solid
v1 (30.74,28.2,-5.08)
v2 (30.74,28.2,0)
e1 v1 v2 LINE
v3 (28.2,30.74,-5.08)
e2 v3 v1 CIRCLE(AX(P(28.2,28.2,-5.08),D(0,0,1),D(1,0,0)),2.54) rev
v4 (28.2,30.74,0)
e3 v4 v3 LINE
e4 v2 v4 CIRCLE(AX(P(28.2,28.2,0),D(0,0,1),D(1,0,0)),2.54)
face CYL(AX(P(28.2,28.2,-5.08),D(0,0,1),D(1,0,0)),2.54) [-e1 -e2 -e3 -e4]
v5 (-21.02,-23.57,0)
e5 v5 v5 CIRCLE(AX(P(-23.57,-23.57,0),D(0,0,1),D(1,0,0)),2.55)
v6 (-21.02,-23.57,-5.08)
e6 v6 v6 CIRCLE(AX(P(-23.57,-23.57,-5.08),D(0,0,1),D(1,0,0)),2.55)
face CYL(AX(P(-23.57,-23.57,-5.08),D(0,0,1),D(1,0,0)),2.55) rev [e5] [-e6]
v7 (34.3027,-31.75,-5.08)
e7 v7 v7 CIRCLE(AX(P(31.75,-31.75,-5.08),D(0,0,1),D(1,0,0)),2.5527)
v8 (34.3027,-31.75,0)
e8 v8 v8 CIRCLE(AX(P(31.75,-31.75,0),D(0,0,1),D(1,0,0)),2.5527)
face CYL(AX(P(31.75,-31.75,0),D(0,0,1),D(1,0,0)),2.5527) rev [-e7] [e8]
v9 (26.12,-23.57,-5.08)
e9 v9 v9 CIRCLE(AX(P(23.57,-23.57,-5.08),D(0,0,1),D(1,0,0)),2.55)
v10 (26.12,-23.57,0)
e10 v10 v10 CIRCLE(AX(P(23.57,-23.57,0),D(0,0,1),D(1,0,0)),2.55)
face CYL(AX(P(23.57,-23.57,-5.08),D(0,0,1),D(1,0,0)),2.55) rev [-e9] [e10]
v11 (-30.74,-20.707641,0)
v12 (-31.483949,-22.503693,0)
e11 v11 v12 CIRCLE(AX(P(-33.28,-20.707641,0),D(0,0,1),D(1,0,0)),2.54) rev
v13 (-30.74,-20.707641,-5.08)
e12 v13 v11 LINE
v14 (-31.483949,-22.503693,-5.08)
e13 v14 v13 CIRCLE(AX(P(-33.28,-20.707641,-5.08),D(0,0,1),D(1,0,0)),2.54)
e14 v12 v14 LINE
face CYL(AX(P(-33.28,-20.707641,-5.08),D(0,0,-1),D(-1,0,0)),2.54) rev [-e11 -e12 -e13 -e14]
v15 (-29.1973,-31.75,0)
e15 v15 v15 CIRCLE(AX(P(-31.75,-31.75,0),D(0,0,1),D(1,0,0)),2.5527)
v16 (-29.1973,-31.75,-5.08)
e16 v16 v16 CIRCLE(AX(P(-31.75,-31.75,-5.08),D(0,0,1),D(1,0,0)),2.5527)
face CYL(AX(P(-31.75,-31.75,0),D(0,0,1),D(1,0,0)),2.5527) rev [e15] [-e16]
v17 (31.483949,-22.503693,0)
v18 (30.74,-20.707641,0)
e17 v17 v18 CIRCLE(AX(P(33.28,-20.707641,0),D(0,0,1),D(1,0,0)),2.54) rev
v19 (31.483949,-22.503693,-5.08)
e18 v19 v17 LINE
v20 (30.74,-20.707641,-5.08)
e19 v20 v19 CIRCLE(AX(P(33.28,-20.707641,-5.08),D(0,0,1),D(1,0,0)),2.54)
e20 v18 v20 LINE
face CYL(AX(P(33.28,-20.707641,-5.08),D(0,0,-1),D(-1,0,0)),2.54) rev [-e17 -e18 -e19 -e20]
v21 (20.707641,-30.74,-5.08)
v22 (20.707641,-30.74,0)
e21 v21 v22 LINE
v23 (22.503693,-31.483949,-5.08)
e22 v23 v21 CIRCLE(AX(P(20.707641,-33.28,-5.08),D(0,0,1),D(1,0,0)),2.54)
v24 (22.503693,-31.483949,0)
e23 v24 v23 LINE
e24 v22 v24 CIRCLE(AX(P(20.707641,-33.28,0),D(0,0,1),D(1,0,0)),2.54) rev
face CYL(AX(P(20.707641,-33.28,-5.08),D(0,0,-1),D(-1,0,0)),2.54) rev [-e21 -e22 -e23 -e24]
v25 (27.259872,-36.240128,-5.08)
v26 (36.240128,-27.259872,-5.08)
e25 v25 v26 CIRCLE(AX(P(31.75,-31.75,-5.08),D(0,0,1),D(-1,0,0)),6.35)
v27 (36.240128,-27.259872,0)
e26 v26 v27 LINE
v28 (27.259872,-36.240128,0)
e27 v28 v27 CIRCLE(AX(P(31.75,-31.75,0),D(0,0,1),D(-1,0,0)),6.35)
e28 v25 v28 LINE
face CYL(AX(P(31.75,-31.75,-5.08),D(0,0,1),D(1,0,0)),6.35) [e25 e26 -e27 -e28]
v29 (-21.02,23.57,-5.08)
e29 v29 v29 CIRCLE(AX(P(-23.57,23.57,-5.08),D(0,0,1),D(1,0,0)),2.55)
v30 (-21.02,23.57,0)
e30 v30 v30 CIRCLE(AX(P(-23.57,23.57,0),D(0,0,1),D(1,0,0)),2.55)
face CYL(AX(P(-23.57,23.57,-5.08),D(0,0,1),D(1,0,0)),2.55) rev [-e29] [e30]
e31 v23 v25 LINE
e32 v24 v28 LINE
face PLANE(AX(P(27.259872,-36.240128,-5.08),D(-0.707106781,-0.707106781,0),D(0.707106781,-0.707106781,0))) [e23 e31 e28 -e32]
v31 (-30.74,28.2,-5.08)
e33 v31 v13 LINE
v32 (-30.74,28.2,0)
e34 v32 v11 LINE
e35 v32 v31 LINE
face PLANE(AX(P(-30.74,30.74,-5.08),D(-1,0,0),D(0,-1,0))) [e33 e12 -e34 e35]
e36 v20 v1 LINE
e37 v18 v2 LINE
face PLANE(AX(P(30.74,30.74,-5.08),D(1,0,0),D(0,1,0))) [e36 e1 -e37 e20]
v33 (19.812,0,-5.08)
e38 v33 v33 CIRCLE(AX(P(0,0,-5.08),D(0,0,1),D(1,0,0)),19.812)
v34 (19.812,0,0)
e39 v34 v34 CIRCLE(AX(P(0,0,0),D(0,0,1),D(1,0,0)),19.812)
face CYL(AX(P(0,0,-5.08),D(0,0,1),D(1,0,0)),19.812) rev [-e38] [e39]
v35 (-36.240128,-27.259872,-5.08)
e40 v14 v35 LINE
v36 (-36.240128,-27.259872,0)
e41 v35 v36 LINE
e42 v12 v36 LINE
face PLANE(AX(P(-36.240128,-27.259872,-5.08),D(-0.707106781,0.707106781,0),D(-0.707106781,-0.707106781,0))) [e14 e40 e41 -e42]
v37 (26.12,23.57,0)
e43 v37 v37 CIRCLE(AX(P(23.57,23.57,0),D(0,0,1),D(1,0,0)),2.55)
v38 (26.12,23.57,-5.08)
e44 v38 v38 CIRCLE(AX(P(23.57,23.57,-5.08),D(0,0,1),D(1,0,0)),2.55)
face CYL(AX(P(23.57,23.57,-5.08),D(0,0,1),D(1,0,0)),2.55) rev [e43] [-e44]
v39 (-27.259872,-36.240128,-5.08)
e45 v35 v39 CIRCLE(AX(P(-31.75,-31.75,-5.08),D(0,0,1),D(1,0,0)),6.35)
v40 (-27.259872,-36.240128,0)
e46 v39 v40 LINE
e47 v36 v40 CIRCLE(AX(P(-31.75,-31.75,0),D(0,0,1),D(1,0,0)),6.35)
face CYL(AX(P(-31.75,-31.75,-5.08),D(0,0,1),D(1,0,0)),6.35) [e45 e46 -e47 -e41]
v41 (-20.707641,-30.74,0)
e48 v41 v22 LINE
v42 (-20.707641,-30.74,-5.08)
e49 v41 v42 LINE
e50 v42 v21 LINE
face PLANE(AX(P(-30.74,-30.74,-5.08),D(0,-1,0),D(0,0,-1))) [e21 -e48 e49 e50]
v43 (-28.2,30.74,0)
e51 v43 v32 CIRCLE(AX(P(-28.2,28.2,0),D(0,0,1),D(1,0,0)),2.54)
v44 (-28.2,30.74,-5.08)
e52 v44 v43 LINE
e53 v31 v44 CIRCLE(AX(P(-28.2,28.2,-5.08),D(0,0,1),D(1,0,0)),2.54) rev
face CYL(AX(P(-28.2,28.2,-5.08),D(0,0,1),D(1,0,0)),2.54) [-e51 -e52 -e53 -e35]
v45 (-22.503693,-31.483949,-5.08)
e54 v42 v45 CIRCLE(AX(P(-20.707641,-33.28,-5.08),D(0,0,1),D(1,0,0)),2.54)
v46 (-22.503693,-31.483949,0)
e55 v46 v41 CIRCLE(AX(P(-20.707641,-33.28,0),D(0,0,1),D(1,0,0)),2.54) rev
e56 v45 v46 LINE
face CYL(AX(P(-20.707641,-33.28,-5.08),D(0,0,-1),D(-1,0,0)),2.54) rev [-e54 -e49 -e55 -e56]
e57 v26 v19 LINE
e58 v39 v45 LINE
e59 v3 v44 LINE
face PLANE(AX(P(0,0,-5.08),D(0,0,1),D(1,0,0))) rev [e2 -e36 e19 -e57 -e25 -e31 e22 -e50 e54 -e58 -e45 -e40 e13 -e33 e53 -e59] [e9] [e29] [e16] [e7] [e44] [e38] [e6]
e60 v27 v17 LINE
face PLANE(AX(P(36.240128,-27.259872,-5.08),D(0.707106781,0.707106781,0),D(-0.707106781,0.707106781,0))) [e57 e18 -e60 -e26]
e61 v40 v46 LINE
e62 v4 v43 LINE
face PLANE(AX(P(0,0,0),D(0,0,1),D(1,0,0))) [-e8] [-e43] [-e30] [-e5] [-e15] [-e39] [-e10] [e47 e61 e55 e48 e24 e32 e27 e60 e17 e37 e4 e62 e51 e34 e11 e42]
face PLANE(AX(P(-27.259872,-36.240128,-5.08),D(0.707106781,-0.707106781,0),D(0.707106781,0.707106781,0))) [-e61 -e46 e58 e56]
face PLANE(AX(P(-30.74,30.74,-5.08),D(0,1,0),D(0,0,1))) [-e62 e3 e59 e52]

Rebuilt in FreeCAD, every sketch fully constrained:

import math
import FreeCAD as App
import Part
import Sketcher
Q = App.Units.Quantity


def edges_at(feature, points):
    """Names of the edges that pass closest to the given points."""
    edges = feature.Shape.Edges
    near = lambda p: min(range(len(edges)), key=lambda i: edges[i].distToShape(Part.Vertex(*p))[0])
    return sorted({f"Edge{near(p) + 1}" for p in points})


def add_polygon(sketch, points):
    """Adds a closed chain of lines whose ends are joined by coincident constraints."""
    first, n = sketch.GeometryCount, len(points)
    for a, b in zip(points, points[1:] + points[:1]):
        sketch.addGeometry(Part.LineSegment(App.Vector(*a, 0), App.Vector(*b, 0)), False)
    for i in range(n):
        sketch.addConstraint(Sketcher.Constraint("Coincident", first + i, 2, first + (i + 1) % n, 1))

doc = App.newDocument("Part")
params = doc.addObject("Spreadsheet::Sheet", "Params")
for row, (alias, value) in enumerate([
    ("sketch1_diameter", "1.56 in"),
    ("pad1_length", "0.2 in"),
    ("fillet_radius", "0.1 in"),
    ("sketch2_radius", "0.25 in"),
    ("pad2_length", "0.2 in"),
    ("fillet2_radius", "0.1 in"),
    ("sketch3_diameter", "0.201 in"),
    ("hole_diameter", "0.201 in"),
], start=1):
    params.set(f"A{row}", alias)
    params.set(f"B{row}", "=" + value)
    params.setAlias(f"B{row}", alias)

body = doc.addObject("PartDesign::Body", "Body")

# Sketch on XY plane
sketch1 = body.newObject("Sketcher::SketchObject", "Sketch")
sketch1.AttachmentSupport = (doc.getObject("XY_Plane"), [""])
sketch1.MapMode = "FlatFace"
add_polygon(sketch1, [(-30.7, 30.7), (-30.7, -30.7), (30.7, -30.7), (30.7, 30.7)])  # lines 0-3
sketch1.addGeometry(Part.Circle(App.Vector(-23.6, -23.6, 0), App.Vector(0, 0, 1), 2.5), False)  # 4
sketch1.addGeometry(Part.Circle(App.Vector(23.6, -23.6, 0), App.Vector(0, 0, 1), 2.5), False)  # 5
sketch1.addGeometry(Part.Circle(App.Vector(0, 0, 0), App.Vector(0, 0, 1), 19.8), False)  # 6
sketch1.addGeometry(Part.Circle(App.Vector(-23.6, 23.6, 0), App.Vector(0, 0, 1), 2.5), False)  # 7
sketch1.addGeometry(Part.Circle(App.Vector(23.6, 23.6, 0), App.Vector(0, 0, 1), 2.5), False)  # 8
sketch1.addConstraint(Sketcher.Constraint("Vertical", 0))
sketch1.addConstraint(Sketcher.Constraint("Horizontal", 1))
sketch1.addConstraint(Sketcher.Constraint("Vertical", 2))
sketch1.addConstraint(Sketcher.Constraint("Horizontal", 3))
sketch1.addConstraint(Sketcher.Constraint("Coincident", 6, 3, -1, 1))
sketch1.addConstraint(Sketcher.Constraint("Equal", 4, 5))
sketch1.addConstraint(Sketcher.Constraint("Equal", 5, 7))
sketch1.addConstraint(Sketcher.Constraint("Equal", 7, 8))
sketch1.addConstraint(Sketcher.Constraint("Symmetric", 5, 3, 7, 3, -1, 1))
sketch1.addConstraint(Sketcher.Constraint("Symmetric", 4, 3, 8, 3, -1, 1))
sketch1.addConstraint(Sketcher.Constraint("Symmetric", 0, 2, 2, 2, -1, 1))
sketch1.addConstraint(Sketcher.Constraint("Symmetric", 4, 3, 5, 3, -2))
sketch1.addConstraint(Sketcher.Constraint("Equal", 3, 0))
sketch1.addConstraint(Sketcher.Constraint("Diameter", 6, Q("1.56 in")))
sketch1.addConstraint(Sketcher.Constraint("Diameter", 4, Q("5.1 mm")))
sketch1.addConstraint(Sketcher.Constraint("DistanceX", 1, 1, 1, 2, Q("61.48 mm")))
sketch1.addConstraint(Sketcher.Constraint("DistanceX", 4, 3, -1, 1, Q("23.57 mm")))
sketch1.addConstraint(Sketcher.Constraint("DistanceY", 4, 3, -1, 1, Q("23.57 mm")))
sketch1.setExpression("Constraints[17]", "Params.sketch1_diameter")
pad1 = body.newObject("PartDesign::Pad", "Pad")
pad1.Profile = sketch1
pad1.setExpression("Length", "Params.pad1_length")
pad1.Reversed = True
doc.recompute()

fillet = body.newObject("PartDesign::Fillet", "Fillet")
fillet.Base = (pad1, edges_at(pad1, [
    (-30.74, 30.74, -2.54),
    (30.74, 30.74, -2.54),
    (30.74, -30.74, -2.54),
    (-30.74, -30.74, -2.54),
]))
fillet.setExpression("Radius", "Params.fillet_radius")

# Sketch on XY plane
sketch2 = body.newObject("Sketcher::SketchObject", "Sketch001")
sketch2.AttachmentSupport = (doc.getObject("XY_Plane"), [""])
sketch2.MapMode = "FlatFace"
sketch2.addGeometry(Part.LineSegment(App.Vector(-27, -36, 0), App.Vector(-22, -31, 0)), False)
sketch2.addGeometry(Part.LineSegment(App.Vector(-22, -31, 0), App.Vector(-31, -22, 0)), False)
sketch2.addGeometry(Part.LineSegment(App.Vector(-31, -22, 0), App.Vector(-36, -27, 0)), False)
sketch2.addGeometry(Part.ArcOfCircle(Part.Circle(App.Vector(-32, -32, 0), App.Vector(0, 0, 1), 6), math.radians(135), math.radians(315)), False)
sketch2.addGeometry(Part.LineSegment(App.Vector(31, -22, 0), App.Vector(22, -31, 0)), False)
sketch2.addGeometry(Part.LineSegment(App.Vector(22, -31, 0), App.Vector(27, -36, 0)), False)
sketch2.addGeometry(Part.ArcOfCircle(Part.Circle(App.Vector(32, -32, 0), App.Vector(0, 0, 1), 6), math.radians(-135), math.radians(45)), False)
sketch2.addGeometry(Part.LineSegment(App.Vector(36, -27, 0), App.Vector(31, -22, 0)), False)
sketch2.addConstraint(Sketcher.Constraint("Coincident", 0, 2, 1, 1))
sketch2.addConstraint(Sketcher.Constraint("Coincident", 1, 2, 2, 1))
sketch2.addConstraint(Sketcher.Constraint("Tangent", 2, 2, 3, 1))
sketch2.addConstraint(Sketcher.Constraint("Tangent", 3, 2, 0, 1))
sketch2.addConstraint(Sketcher.Constraint("Coincident", 4, 2, 5, 1))
sketch2.addConstraint(Sketcher.Constraint("Tangent", 5, 2, 6, 1))
sketch2.addConstraint(Sketcher.Constraint("Tangent", 6, 2, 7, 1))
sketch2.addConstraint(Sketcher.Constraint("Coincident", 7, 2, 4, 1))
sketch2.addConstraint(Sketcher.Constraint("Equal", 3, 6))
sketch2.addConstraint(Sketcher.Constraint("Symmetric", 3, 3, 6, 3, -2))
sketch2.addConstraint(Sketcher.Constraint("Symmetric", 0, 2, 4, 2, -2))
sketch2.addConstraint(Sketcher.Constraint("Symmetric", 1, 2, 7, 2, -2))
sketch2.addConstraint(Sketcher.Constraint("Perpendicular", 0, 1))
sketch2.addConstraint(Sketcher.Constraint("Perpendicular", 1, 2))
sketch2.addConstraint(Sketcher.Constraint("Parallel", 2, 4))
sketch2.addConstraint(Sketcher.Constraint("Radius", 3, Q("0.25 in")))
sketch2.addConstraint(Sketcher.Constraint("DistanceX", 3, 3, 6, 3, Q("2.5 in")))
sketch2.addConstraint(Sketcher.Constraint("DistanceY", 3, 3, -1, 1, Q("1.25 in")))
sketch2.addConstraint(Sketcher.Constraint("DistanceY", 0, 2, -1, 1, Q("30.74 mm")))
sketch2.setExpression("Constraints[15]", "Params.sketch2_radius")
pad2 = body.newObject("PartDesign::Pad", "Pad001")
pad2.Profile = sketch2
pad2.setExpression("Length", "Params.pad2_length")
pad2.Reversed = True
doc.recompute()

fillet2 = body.newObject("PartDesign::Fillet", "Fillet001")
fillet2.Base = (pad2, edges_at(pad2, [
    (-30.74, -21.76, -2.54),
    (-21.76, -30.74, -2.54),
    (21.76, -30.74, -2.54),
    (30.74, -21.76, -2.54),
]))
fillet2.setExpression("Radius", "Params.fillet2_radius")

# Sketch on XY plane
sketch3 = body.newObject("Sketcher::SketchObject", "Sketch002")
sketch3.AttachmentSupport = (doc.getObject("XY_Plane"), [""])
sketch3.MapMode = "FlatFace"
sketch3.addGeometry(Part.Circle(App.Vector(-31.8, -31.8, 0), App.Vector(0, 0, 1), 2.6), False)
sketch3.addGeometry(Part.Circle(App.Vector(31.8, -31.8, 0), App.Vector(0, 0, 1), 2.6), False)
sketch3.addConstraint(Sketcher.Constraint("Equal", 0, 1))
sketch3.addConstraint(Sketcher.Constraint("Symmetric", 0, 3, 1, 3, -2))
sketch3.addConstraint(Sketcher.Constraint("Diameter", 0, Q("0.201 in")))
sketch3.addConstraint(Sketcher.Constraint("DistanceX", 0, 3, 1, 3, Q("2.5 in")))
sketch3.addConstraint(Sketcher.Constraint("DistanceY", 0, 3, -1, 1, Q("1.25 in")))
sketch3.setExpression("Constraints[2]", "Params.sketch3_diameter")
doc.recompute()
hole = body.newObject("PartDesign::Hole", "Hole")
hole.Profile = sketch3
hole.ThreadType = "None"
hole.setExpression("Diameter", "Params.hole_diameter")
hole.DepthType = "ThroughAll"

doc.recompute()
